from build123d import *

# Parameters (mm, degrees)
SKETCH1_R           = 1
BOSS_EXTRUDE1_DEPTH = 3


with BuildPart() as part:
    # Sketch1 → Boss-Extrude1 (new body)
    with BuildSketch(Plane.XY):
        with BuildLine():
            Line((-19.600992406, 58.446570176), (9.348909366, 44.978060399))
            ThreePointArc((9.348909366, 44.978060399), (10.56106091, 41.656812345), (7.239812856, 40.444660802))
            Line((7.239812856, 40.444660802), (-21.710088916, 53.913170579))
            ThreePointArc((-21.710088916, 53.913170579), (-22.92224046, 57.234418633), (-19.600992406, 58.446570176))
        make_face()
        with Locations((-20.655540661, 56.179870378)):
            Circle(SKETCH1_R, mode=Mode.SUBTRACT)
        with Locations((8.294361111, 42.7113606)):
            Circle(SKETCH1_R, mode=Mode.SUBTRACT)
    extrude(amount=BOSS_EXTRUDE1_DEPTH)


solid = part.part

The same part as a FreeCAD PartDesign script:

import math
import FreeCAD as App
import Part
import Sketcher
from FreeCAD import Vector

doc = App.newDocument("Part")
body = doc.addObject("PartDesign::Body", "Body")

# Sketch on XY plane
sketch1 = body.newObject("Sketcher::SketchObject", "Sketch")
sketch1.AttachmentSupport = (doc.getObject("XY_Plane"), [""])
sketch1.MapMode = "FlatFace"
sketch1.addGeometry([
    Part.LineSegment(Vector(9.3, 45, 0), Vector(-19.6, 58.4, 0)),  # 0
    Part.ArcOfCircle(Part.Circle(Vector(-20.7, 56.2, 0), Vector(0, 0, 1), 2.5), math.radians(65), math.radians(245)),  # 1
    Part.LineSegment(Vector(-21.7, 53.9, 0), Vector(7.2, 40.4, 0)),  # 2
    Part.ArcOfCircle(Part.Circle(Vector(8.3, 42.7, 0), Vector(0, 0, 1), 2.5), math.radians(-115), math.radians(65)),  # 3
    Part.Circle(Vector(8.3, 42.7, 0), Vector(0, 0, 1), 1),  # 4
    Part.Circle(Vector(-20.7, 56.2, 0), Vector(0, 0, 1), 1),  # 5
], False)
sketch1.addConstraint([
    Sketcher.Constraint("Tangent", 0, 2, 1, 1),
    Sketcher.Constraint("Tangent", 1, 2, 2, 1),
    Sketcher.Constraint("Tangent", 2, 2, 3, 1),
    Sketcher.Constraint("Tangent", 3, 2, 0, 1),
    Sketcher.Constraint("Coincident", 4, 3, 3, 3),
    Sketcher.Constraint("Coincident", 5, 3, 1, 3),
    Sketcher.Constraint("Equal", 1, 3),
    Sketcher.Constraint("Equal", 4, 5),
    Sketcher.Constraint("Diameter", 4, 2.0),
    Sketcher.Constraint("Radius", 1, 2.5),
    Sketcher.Constraint("DistanceX", 1, 3, 3, 3, 28.949902),
    Sketcher.Constraint("DistanceY", 5, 3, 0, 2, 2.2667),
    Sketcher.Constraint("DistanceX", 1, 3, -1, 1, 20.655541),
    Sketcher.Constraint("DistanceY", -1, 1, 1, 3, 56.17987),
])
pad1 = body.newObject("PartDesign::Pad", "Pad")
pad1.Profile = sketch1
pad1.Length = 3

doc.recompute()
